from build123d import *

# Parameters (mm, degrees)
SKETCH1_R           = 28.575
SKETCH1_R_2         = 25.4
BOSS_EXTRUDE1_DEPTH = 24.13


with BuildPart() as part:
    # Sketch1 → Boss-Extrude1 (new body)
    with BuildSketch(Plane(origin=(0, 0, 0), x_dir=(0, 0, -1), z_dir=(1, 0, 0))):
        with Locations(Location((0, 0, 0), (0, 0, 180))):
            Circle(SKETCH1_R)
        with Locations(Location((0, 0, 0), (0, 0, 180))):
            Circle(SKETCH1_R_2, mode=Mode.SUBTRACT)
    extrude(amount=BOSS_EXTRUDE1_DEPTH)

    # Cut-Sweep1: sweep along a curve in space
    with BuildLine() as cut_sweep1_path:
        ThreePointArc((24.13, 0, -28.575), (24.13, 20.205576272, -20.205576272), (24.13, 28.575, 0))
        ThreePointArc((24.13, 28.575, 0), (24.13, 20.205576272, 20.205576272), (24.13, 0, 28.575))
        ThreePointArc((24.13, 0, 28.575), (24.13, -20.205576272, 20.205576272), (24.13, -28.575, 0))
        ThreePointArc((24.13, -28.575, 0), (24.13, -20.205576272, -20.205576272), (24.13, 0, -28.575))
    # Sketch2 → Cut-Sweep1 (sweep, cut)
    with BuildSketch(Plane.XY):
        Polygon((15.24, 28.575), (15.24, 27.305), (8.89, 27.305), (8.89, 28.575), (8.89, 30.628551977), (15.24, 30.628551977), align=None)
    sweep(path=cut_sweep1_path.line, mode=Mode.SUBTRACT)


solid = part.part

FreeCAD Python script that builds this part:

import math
import FreeCAD as App
import Part
import Sketcher
Q = App.Units.Quantity


def add_polygon(sketch, points):
    """Adds a closed chain of lines whose ends are joined by coincident constraints."""
    first, n = sketch.GeometryCount, len(points)
    for a, b in zip(points, points[1:] + points[:1]):
        sketch.addGeometry(Part.LineSegment(App.Vector(*a, 0), App.Vector(*b, 0)), False)
    for i in range(n):
        sketch.addConstraint(Sketcher.Constraint("Coincident", first + i, 2, first + (i + 1) % n, 1))

doc = App.newDocument("Part")
body = doc.addObject("PartDesign::Body", "Body")

# Sketch on YZ plane
sketch1 = body.newObject("Sketcher::SketchObject", "Sketch")
sketch1.AttachmentSupport = (doc.getObject("YZ_Plane"), [""])
sketch1.MapMode = "FlatFace"
sketch1.addGeometry(Part.Circle(App.Vector(0, 0, 0), App.Vector(0, 0, 1), 29), False)
sketch1.addGeometry(Part.Circle(App.Vector(0, 0, 0), App.Vector(0, 0, 1), 25), False)
sketch1.addConstraint(Sketcher.Constraint("Coincident", 0, 3, -1, 1))
sketch1.addConstraint(Sketcher.Constraint("Coincident", 1, 3, -1, 1))
sketch1.addConstraint(Sketcher.Constraint("Diameter", 1, Q("2 in")))
sketch1.addConstraint(Sketcher.Constraint("Diameter", 0, Q("2.25 in")))
pad1 = body.newObject("PartDesign::Pad", "Pad")
pad1.Profile = sketch1
pad1.Length = Q("0.95 in")

# Sketch on XY plane
sketch2 = body.newObject("Sketcher::SketchObject", "Sketch001")
sketch2.AttachmentSupport = (doc.getObject("XY_Plane"), [""])
sketch2.MapMode = "FlatFace"
add_polygon(sketch2, [(15.2, 27.3), (15.2, 30.6), (8.9, 30.6), (8.9, 27.3)])  # lines 0-3
sketch2.addConstraint(Sketcher.Constraint("Vertical", 0))
sketch2.addConstraint(Sketcher.Constraint("Horizontal", 1))
sketch2.addConstraint(Sketcher.Constraint("Vertical", 2))
sketch2.addConstraint(Sketcher.Constraint("Horizontal", 3))
sketch2.addConstraint(Sketcher.Constraint("DistanceX", 1, 2, 1, 1, Q("0.25 in")))
sketch2.addConstraint(Sketcher.Constraint("DistanceX", -1, 1, 0, 2, Q("0.6 in")))
sketch2.addConstraint(Sketcher.Constraint("DistanceY", -1, 1, 2, 2, Q("1.075 in")))
sketch2.addConstraint(Sketcher.Constraint("DistanceY", 0, 1, 0, 2, 3.323552))

# Sketch on YZ plane
sketch3 = body.newObject("Sketcher::SketchObject", "Sketch002")
sketch3.AttachmentSupport = (doc.getObject("YZ_Plane"), [""])
sketch3.MapMode = "FlatFace"
sketch3.AttachmentOffset = App.Placement(App.Vector(0, 0, 0.95 * 25.4), App.Rotation())
sketch3.addGeometry(Part.ArcOfCircle(Part.Circle(App.Vector(0, 0, 0), App.Vector(0, 0, 1), 29), math.radians(-90), math.radians(0)), False)
sketch3.addGeometry(Part.ArcOfCircle(Part.Circle(App.Vector(0, 0, 0), App.Vector(0, 0, 1), 29), math.radians(0), math.radians(90)), False)
sketch3.addGeometry(Part.ArcOfCircle(Part.Circle(App.Vector(0, 0, 0), App.Vector(0, 0, 1), 29), math.radians(90), math.radians(180)), False)
sketch3.addGeometry(Part.ArcOfCircle(Part.Circle(App.Vector(0, 0, 0), App.Vector(0, 0, 1), 29), math.radians(-180), math.radians(-90)), False)
sketch3.addConstraint(Sketcher.Constraint("Tangent", 0, 2, 1, 1))
sketch3.addConstraint(Sketcher.Constraint("Tangent", 1, 2, 2, 1))
sketch3.addConstraint(Sketcher.Constraint("Tangent", 2, 2, 3, 1))
sketch3.addConstraint(Sketcher.Constraint("Tangent", 3, 2, 0, 1))
sketch3.addConstraint(Sketcher.Constraint("Coincident", 0, 3, -1, 1))
sketch3.addConstraint(Sketcher.Constraint("Equal", 0, 1))
sketch3.addConstraint(Sketcher.Constraint("PointOnObject", 0, 2, -1))
sketch3.addConstraint(Sketcher.Constraint("PointOnObject", 1, 2, -2))
sketch3.addConstraint(Sketcher.Constraint("PointOnObject", 2, 2, -1))
sketch3.addConstraint(Sketcher.Constraint("PointOnObject", 3, 2, -2))
sketch3.addConstraint(Sketcher.Constraint("Radius", 0, Q("1.125 in")))
doc.recompute()

subtractivepipe = body.newObject("PartDesign::SubtractivePipe", "SubtractivePipe")
subtractivepipe.Profile = sketch2
subtractivepipe.Spine = (sketch3, ["Edge1", "Edge2", "Edge3", "Edge4"])

doc.recompute()
